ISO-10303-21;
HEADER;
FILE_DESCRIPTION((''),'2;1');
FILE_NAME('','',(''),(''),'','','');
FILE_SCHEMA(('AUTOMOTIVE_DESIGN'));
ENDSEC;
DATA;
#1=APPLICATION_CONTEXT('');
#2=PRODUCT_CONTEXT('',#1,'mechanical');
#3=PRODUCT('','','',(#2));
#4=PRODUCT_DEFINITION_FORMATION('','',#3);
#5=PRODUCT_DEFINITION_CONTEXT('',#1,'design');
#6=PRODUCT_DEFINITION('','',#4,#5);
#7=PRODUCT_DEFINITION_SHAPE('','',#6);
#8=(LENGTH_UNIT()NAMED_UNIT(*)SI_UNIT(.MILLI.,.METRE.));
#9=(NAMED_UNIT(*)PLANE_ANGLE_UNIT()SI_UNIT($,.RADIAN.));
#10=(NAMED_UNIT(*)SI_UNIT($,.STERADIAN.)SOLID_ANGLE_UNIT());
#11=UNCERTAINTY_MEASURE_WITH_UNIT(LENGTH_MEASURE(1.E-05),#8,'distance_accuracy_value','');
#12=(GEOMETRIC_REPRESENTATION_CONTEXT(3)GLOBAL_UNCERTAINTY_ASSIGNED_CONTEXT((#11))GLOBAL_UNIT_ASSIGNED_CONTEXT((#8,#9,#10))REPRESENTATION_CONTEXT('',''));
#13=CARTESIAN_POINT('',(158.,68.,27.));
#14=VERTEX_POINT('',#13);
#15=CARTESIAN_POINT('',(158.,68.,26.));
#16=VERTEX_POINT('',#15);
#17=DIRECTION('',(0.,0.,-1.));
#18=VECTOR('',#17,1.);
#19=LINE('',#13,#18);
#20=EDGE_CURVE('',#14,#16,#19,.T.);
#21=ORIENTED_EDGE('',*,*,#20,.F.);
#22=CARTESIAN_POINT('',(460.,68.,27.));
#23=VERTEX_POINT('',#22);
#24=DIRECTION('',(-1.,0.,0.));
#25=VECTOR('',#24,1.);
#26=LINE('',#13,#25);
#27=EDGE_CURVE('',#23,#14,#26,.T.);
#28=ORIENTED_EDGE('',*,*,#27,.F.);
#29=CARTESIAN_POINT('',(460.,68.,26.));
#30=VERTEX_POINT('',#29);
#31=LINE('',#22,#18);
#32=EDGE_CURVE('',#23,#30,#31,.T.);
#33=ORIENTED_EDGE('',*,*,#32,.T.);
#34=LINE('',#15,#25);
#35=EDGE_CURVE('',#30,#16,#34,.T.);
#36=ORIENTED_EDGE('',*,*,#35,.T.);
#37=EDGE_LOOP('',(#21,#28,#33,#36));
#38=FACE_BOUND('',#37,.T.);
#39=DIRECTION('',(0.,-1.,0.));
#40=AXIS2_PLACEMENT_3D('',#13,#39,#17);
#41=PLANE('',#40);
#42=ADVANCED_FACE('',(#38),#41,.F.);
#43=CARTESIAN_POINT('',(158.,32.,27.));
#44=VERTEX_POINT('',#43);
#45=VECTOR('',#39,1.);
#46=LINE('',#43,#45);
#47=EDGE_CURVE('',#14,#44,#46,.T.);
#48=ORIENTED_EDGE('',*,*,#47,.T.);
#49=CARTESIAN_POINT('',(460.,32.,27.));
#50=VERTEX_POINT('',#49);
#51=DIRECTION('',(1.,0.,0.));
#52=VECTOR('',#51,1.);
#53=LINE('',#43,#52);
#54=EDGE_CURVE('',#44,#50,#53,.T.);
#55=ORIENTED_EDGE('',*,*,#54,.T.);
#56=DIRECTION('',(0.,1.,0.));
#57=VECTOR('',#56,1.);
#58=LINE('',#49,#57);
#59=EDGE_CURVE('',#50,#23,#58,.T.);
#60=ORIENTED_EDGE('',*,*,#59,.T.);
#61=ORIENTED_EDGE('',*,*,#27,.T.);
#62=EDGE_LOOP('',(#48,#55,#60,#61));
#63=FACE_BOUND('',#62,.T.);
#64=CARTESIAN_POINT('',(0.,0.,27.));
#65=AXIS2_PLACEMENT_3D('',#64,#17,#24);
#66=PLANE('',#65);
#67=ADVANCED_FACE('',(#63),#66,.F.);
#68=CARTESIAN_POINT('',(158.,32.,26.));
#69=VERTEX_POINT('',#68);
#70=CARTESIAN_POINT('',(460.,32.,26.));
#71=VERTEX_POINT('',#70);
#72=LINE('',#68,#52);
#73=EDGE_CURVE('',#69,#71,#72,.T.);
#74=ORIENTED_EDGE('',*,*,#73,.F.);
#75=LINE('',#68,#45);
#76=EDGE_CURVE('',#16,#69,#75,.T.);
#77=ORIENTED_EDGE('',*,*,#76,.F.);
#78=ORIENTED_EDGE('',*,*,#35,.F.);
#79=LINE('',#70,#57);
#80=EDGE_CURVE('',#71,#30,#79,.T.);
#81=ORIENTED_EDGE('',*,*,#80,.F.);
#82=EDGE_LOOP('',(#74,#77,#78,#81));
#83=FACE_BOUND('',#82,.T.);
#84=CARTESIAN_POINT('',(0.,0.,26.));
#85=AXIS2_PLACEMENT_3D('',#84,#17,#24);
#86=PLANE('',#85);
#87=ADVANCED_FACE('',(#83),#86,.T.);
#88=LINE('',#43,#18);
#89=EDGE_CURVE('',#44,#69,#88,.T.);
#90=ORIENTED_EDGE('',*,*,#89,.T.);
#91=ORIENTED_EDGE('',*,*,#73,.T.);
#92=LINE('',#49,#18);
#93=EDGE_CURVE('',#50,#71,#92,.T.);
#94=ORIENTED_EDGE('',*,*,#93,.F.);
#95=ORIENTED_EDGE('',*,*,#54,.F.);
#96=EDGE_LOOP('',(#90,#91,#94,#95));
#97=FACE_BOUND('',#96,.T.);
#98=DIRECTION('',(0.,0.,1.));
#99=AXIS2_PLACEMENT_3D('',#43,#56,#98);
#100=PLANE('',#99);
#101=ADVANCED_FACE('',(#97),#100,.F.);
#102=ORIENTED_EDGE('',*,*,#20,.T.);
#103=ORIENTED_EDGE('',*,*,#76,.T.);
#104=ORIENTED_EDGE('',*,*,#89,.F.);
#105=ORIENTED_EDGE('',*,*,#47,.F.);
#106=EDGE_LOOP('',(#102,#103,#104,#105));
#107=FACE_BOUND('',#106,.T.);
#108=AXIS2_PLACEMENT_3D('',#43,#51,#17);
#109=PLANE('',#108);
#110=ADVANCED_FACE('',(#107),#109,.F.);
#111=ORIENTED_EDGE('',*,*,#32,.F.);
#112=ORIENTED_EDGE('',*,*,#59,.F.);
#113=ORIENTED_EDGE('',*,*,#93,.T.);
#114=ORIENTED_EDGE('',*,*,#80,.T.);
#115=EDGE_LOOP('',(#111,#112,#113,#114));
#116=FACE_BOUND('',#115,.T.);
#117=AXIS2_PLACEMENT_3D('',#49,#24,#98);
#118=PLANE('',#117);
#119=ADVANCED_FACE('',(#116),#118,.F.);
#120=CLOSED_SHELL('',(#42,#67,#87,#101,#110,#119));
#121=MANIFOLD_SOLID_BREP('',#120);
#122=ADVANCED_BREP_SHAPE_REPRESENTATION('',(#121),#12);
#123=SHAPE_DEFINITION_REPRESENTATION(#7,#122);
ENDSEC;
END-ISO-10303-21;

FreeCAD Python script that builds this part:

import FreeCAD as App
import Part
import Sketcher

V = App.Vector
Q = App.Units.Quantity


def add_polygon(sketch, points):
    """Adds a closed chain of lines whose ends are joined by coincident constraints."""
    first, n = sketch.GeometryCount, len(points)
    for a, b in zip(points, points[1:] + points[:1]):
        sketch.addGeometry(Part.LineSegment(App.Vector(*a, 0), App.Vector(*b, 0)), False)
    for i in range(n):
        sketch.addConstraint(Sketcher.Constraint("Coincident", first + i, 2, first + (i + 1) % n, 1))

doc = App.newDocument("Part")
body = doc.addObject("PartDesign::Body", "Body")

# Sketch on XY plane
sketch1 = doc.addObject("Sketcher::SketchObject", "Sketch")
body.addObject(sketch1)
sketch1.AttachmentSupport = (doc.XY_Plane, [""])
sketch1.MapMode = "FlatFace"
sketch1.AttachmentOffset = App.Placement(V(0, 0, 26), App.Rotation())
add_polygon(sketch1, [(158, 68), (158, 32), (460, 32), (460, 68)])  # lines 0-3
sketch1.addConstraint(Sketcher.Constraint("Vertical", 0))
sketch1.addConstraint(Sketcher.Constraint("Horizontal", 1))
sketch1.addConstraint(Sketcher.Constraint("Vertical", 2))
sketch1.addConstraint(Sketcher.Constraint("Horizontal", 3))
sketch1.addConstraint(Sketcher.Constraint("DistanceX", 1, 1, 1, 2, Q("302 mm")))
sketch1.addConstraint(Sketcher.Constraint("DistanceY", 0, 2, 0, 1, Q("36 mm")))
sketch1.addConstraint(Sketcher.Constraint("DistanceX", -1, 1, 0, 2, Q("158 mm")))
sketch1.addConstraint(Sketcher.Constraint("DistanceY", -1, 1, 0, 2, Q("32 mm")))
pad1 = doc.addObject("PartDesign::Pad", "Pad")
body.addObject(pad1)
pad1.Profile = sketch1
pad1.Length = 1

doc.recompute()
